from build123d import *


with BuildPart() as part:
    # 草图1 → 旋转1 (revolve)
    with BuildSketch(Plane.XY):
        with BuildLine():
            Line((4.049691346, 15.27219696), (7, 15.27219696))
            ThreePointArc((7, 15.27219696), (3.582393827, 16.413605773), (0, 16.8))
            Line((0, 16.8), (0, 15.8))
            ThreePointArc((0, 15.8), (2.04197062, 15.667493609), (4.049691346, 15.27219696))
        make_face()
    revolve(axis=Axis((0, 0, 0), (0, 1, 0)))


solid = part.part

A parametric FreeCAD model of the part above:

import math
import FreeCAD as App
import Part
import Sketcher
from FreeCAD import Vector
Q = App.Units.Quantity

doc = App.newDocument("Part")
body = doc.addObject("PartDesign::Body", "Body")

sketch1 = body.newObject("Sketcher::SketchObject", "Sketch")
sketch1.AttachmentSupport = (doc.getObject("XY_Plane"), [""])
sketch1.MapMode = "FlatFace"
sketch1.addGeometry([
    Part.LineSegment(Vector(4, 15.3, 0), Vector(7, 15.3, 0)),
    Part.ArcOfCircle(Part.Circle(Vector(0, 0, 0), Vector(0, 0, 1), 16.8), math.radians(65), math.radians(90)),
    Part.LineSegment(Vector(0, 16.8, 0), Vector(0, 15.8, 0)),
    Part.ArcOfCircle(Part.Circle(Vector(0, 0, 0), Vector(0, 0, 1), 15.8), math.radians(75.15), math.radians(90)),
], False)
sketch1.addConstraint([
    Sketcher.Constraint("Coincident", 0, 2, 1, 1),
    Sketcher.Constraint("Coincident", 1, 2, 2, 1),
    Sketcher.Constraint("Coincident", 2, 2, 3, 2),
    Sketcher.Constraint("Coincident", 3, 1, 0, 1),
    Sketcher.Constraint("Horizontal", 0),
    Sketcher.Constraint("Vertical", 2),
    Sketcher.Constraint("Coincident", 1, 3, -1, 1),
    Sketcher.Constraint("Coincident", 3, 3, -1, 1),
    Sketcher.Constraint("PointOnObject", 1, 2, -2),
    Sketcher.Constraint("Radius", 1, Q("16.8 mm")),
    Sketcher.Constraint("Radius", 3, Q("15.8 mm")),
    Sketcher.Constraint("DistanceX", -1, 1, 0, 2, Q("7 mm")),
])
revolution = body.newObject("PartDesign::Revolution", "Revolution")
revolution.Profile = sketch1
revolution.ReferenceAxis = (sketch1, ["V_Axis"])
revolution.Angle = 360

doc.recompute()
